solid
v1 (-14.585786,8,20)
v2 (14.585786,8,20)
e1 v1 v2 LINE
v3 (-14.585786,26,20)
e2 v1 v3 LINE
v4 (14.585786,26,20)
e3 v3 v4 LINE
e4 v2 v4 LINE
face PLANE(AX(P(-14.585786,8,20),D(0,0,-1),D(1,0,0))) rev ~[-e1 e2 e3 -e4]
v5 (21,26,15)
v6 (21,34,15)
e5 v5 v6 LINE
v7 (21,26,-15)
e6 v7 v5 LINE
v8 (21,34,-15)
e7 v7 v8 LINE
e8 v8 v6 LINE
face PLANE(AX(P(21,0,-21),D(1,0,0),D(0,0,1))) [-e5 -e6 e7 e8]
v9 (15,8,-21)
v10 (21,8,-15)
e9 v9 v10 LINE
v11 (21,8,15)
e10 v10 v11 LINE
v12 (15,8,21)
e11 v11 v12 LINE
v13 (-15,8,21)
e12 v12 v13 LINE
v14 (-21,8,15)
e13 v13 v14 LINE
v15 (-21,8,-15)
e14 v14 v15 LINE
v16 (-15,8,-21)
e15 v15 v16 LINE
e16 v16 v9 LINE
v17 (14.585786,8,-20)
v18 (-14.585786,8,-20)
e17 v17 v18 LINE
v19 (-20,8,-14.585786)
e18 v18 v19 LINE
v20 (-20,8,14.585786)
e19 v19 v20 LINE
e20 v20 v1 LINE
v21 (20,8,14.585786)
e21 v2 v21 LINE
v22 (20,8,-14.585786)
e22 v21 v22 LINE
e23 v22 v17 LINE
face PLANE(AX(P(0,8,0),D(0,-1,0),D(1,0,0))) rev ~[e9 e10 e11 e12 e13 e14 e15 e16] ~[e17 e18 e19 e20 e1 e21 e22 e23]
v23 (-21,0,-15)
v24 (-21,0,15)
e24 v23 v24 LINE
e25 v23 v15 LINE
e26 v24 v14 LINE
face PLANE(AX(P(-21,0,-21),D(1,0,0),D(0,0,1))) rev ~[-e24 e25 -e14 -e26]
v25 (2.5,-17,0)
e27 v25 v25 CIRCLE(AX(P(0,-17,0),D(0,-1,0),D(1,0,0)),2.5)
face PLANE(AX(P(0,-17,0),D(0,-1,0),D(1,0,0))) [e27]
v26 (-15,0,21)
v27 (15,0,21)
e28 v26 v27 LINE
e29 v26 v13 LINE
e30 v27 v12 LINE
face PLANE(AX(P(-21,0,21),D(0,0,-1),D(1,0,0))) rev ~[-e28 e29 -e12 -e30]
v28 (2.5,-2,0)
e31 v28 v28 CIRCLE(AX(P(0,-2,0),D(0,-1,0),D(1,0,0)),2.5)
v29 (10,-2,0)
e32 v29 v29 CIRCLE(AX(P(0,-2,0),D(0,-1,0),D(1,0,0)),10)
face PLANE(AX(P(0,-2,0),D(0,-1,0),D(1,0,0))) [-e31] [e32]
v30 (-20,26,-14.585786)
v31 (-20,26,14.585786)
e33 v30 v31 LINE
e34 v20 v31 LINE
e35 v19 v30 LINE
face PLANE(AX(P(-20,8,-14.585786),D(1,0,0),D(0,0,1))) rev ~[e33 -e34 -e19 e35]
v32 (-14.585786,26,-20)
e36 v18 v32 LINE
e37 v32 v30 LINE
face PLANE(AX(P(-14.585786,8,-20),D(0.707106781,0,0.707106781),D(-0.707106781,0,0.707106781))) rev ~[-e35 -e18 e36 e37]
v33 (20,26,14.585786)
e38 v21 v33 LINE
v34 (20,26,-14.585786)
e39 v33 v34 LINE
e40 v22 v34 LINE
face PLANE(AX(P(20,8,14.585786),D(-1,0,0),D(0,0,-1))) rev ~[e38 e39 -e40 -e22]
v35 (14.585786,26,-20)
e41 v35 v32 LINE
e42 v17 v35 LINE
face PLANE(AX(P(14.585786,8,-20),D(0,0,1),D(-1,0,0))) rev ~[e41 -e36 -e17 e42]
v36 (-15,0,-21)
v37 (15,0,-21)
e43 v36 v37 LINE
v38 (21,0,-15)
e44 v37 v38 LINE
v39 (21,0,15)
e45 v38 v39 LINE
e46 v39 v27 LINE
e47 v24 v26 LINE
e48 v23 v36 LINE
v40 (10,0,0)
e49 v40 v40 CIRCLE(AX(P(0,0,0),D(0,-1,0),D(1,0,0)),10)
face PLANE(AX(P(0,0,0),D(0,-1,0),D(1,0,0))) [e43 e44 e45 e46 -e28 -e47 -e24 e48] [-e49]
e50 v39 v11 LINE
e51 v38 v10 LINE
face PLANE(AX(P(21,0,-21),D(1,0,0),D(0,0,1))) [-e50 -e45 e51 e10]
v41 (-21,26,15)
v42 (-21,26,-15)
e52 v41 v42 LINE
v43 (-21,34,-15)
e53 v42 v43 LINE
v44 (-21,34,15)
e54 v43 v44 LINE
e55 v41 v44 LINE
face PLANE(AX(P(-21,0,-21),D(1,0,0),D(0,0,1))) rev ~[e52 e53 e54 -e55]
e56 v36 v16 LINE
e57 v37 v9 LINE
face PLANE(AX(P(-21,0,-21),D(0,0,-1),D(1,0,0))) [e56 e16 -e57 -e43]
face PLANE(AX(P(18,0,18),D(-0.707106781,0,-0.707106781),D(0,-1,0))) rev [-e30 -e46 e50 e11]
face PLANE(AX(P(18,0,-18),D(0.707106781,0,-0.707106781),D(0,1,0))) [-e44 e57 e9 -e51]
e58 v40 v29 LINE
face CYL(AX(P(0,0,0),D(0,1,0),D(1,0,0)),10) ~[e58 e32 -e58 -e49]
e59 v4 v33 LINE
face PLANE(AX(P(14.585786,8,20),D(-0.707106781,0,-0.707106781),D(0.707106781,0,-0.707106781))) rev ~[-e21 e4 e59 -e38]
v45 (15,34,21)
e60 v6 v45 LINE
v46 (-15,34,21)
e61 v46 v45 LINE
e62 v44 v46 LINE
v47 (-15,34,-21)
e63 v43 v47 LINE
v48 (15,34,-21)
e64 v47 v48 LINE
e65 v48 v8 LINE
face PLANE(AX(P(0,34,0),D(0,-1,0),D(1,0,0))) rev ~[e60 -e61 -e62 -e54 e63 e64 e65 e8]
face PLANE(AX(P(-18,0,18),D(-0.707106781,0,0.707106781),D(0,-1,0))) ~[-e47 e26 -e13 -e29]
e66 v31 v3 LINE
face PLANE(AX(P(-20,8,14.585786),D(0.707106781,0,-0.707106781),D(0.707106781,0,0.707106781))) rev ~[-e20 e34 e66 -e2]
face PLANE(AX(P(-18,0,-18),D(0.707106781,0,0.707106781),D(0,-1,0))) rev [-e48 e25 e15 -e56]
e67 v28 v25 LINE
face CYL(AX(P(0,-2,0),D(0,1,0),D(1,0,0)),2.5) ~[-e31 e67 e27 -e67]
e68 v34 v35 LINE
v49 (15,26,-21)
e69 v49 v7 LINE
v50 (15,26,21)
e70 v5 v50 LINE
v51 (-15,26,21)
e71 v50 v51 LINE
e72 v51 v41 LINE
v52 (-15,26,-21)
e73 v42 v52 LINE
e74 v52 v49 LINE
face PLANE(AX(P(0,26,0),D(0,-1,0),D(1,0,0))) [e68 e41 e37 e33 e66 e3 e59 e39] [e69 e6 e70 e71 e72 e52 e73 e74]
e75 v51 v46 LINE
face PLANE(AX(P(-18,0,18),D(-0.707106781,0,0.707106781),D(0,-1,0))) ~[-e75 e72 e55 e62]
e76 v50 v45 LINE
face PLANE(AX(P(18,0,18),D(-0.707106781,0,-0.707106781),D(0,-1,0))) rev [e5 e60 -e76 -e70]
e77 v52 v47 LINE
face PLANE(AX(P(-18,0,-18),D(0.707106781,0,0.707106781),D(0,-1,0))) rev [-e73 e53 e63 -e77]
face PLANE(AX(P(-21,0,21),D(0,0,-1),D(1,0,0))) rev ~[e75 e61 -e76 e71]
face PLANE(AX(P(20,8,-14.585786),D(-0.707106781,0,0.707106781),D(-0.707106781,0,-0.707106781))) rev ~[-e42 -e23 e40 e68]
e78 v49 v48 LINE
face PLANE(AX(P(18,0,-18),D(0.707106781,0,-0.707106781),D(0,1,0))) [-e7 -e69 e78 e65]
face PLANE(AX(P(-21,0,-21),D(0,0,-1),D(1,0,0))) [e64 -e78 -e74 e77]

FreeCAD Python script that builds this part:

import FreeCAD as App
import Part
import Sketcher

V = App.Vector
Q = App.Units.Quantity


def edges_at(feature, points):
    """Names of the edges that pass closest to the given points."""
    edges = feature.Shape.Edges
    near = lambda p: min(range(len(edges)), key=lambda i: edges[i].distToShape(Part.Vertex(*p))[0])
    return sorted({f"Edge{near(p) + 1}" for p in points})

doc = App.newDocument("Part")
body = doc.addObject("PartDesign::Body", "Body")

sketch1 = body.newObject("Sketcher::SketchObject", "Sketch")
sketch1.AttachmentSupport = (doc.getObject("XZ_Plane"), [""])
sketch1.MapMode = "FlatFace"
sketch1.addGeometry([
    Part.LineSegment(V(-21, 21, 0), V(-21, -21, 0)),
    Part.LineSegment(V(-21, -21, 0), V(21, -21, 0)),
    Part.LineSegment(V(21, -21, 0), V(21, 21, 0)),
    Part.LineSegment(V(21, 21, 0), V(-21, 21, 0)),
], False)
sketch1.addConstraint([
    Sketcher.Constraint("Coincident", 0, 2, 1, 1),
    Sketcher.Constraint("Coincident", 1, 2, 2, 1),
    Sketcher.Constraint("Coincident", 2, 2, 3, 1),
    Sketcher.Constraint("Coincident", 3, 2, 0, 1),
    Sketcher.Constraint("Vertical", 0),
    Sketcher.Constraint("Horizontal", 1),
    Sketcher.Constraint("Vertical", 2),
    Sketcher.Constraint("Horizontal", 3),
    Sketcher.Constraint("Symmetric", 0, 2, 2, 2, -1, 1),
    Sketcher.Constraint("Equal", 3, 0),
    Sketcher.Constraint("DistanceX", 1, 1, 1, 2, Q("42 mm")),
])
pad1 = body.newObject("PartDesign::Pad", "Pad")
pad1.Profile = sketch1
pad1.Length = 34
pad1.Reversed = True
doc.recompute()

chamfer = body.newObject("PartDesign::Chamfer", "Chamfer")
chamfer.Base = (pad1, edges_at(pad1, [
    (21, 17, 21),
    (-21, 17, 21),
    (21, 17, -21),
    (-21, 17, -21),
]))
chamfer.Size = 6

sketch2 = body.newObject("Sketcher::SketchObject", "Sketch001")
sketch2.AttachmentSupport = (doc.getObject("XZ_Plane"), [""])
sketch2.MapMode = "FlatFace"
sketch2.AttachmentOffset = App.Placement(V(0, 0, -8), App.Rotation())
sketch2.addGeometry([
    Part.LineSegment(V(15, 21, 0), V(-15, 21, 0)),
    Part.LineSegment(V(-15, 21, 0), V(-21, 15, 0)),
    Part.LineSegment(V(-21, 15, 0), V(-21, -15, 0)),
    Part.LineSegment(V(-21, -15, 0), V(-15, -21, 0)),
    Part.LineSegment(V(-15, -21, 0), V(15, -21, 0)),
    Part.LineSegment(V(15, -21, 0), V(21, -15, 0)),
    Part.LineSegment(V(21, -15, 0), V(21, 15, 0)),
    Part.LineSegment(V(21, 15, 0), V(15, 21, 0)),
    Part.LineSegment(V(-20, -15, 0), V(-20, 15, 0)),
    Part.LineSegment(V(-20, 15, 0), V(-15, 20, 0)),
    Part.LineSegment(V(-15, 20, 0), V(15, 20, 0)),
    Part.LineSegment(V(15, 20, 0), V(20, 15, 0)),
    Part.LineSegment(V(20, 15, 0), V(20, -15, 0)),
    Part.LineSegment(V(20, -15, 0), V(15, -20, 0)),
    Part.LineSegment(V(15, -20, 0), V(-15, -20, 0)),
    Part.LineSegment(V(-15, -20, 0), V(-20, -15, 0)),
], False)
sketch2.addConstraint([
    Sketcher.Constraint("Coincident", 0, 2, 1, 1),
    Sketcher.Constraint("Coincident", 1, 2, 2, 1),
    Sketcher.Constraint("Coincident", 2, 2, 3, 1),
    Sketcher.Constraint("Coincident", 3, 2, 4, 1),
    Sketcher.Constraint("Coincident", 4, 2, 5, 1),
    Sketcher.Constraint("Coincident", 5, 2, 6, 1),
    Sketcher.Constraint("Coincident", 6, 2, 7, 1),
    Sketcher.Constraint("Coincident", 7, 2, 0, 1),
    Sketcher.Constraint("Coincident", 8, 2, 9, 1),
    Sketcher.Constraint("Coincident", 9, 2, 10, 1),
    Sketcher.Constraint("Coincident", 10, 2, 11, 1),
    Sketcher.Constraint("Coincident", 11, 2, 12, 1),
    Sketcher.Constraint("Coincident", 12, 2, 13, 1),
    Sketcher.Constraint("Coincident", 13, 2, 14, 1),
    Sketcher.Constraint("Coincident", 14, 2, 15, 1),
    Sketcher.Constraint("Coincident", 15, 2, 8, 1),
    Sketcher.Constraint("Horizontal", 0),
    Sketcher.Constraint("Vertical", 2),
    Sketcher.Constraint("Horizontal", 4),
    Sketcher.Constraint("Vertical", 6),
    Sketcher.Constraint("Vertical", 8),
    Sketcher.Constraint("Horizontal", 10),
    Sketcher.Constraint("Vertical", 12),
    Sketcher.Constraint("Horizontal", 14),
    Sketcher.Constraint("Symmetric", 0, 2, 4, 2, -1, 1),
    Sketcher.Constraint("Symmetric", 1, 2, 5, 2, -1, 1),
    Sketcher.Constraint("Symmetric", 8, 2, 12, 2, -1, 1),
    Sketcher.Constraint("Symmetric", 9, 2, 13, 2, -1, 1),
    Sketcher.Constraint("Perpendicular", 1, 3),
    Sketcher.Constraint("Perpendicular", 5, 7),
    Sketcher.Constraint("Perpendicular", 7, 9),
    Sketcher.Constraint("Perpendicular", 9, 11),
    Sketcher.Constraint("Perpendicular", 13, 15),
    Sketcher.Constraint("Horizontal", 2, 2, 5, 2),
    Sketcher.Constraint("Horizontal", 1, 2, 6, 2),
    Sketcher.Constraint("Horizontal", 8, 2, 11, 2),
    Sketcher.Constraint("Horizontal", 12, 2, 15, 2),
    Sketcher.Constraint("Vertical", 0, 2, 3, 2),
    Sketcher.Constraint("Equal", 4, 2),
    Sketcher.Constraint("Equal", 14, 8),
    Sketcher.Constraint("DistanceX", 0, 2, 0, 1, Q("30 mm")),
    Sketcher.Constraint("DistanceY", -1, 1, 0, 2, Q("21 mm")),
    Sketcher.Constraint("DistanceX", 8, 2, -1, 1, Q("20 mm")),
    Sketcher.Constraint("DistanceX", 10, 1, 10, 2, Q("29.171572 mm")),
])
pocket1 = body.newObject("PartDesign::Pocket", "Pocket")
pocket1.Profile = sketch2
pocket1.Length = 18

sketch3 = body.newObject("Sketcher::SketchObject", "Sketch002")
sketch3.AttachmentSupport = (doc.getObject("XZ_Plane"), [""])
sketch3.MapMode = "FlatFace"
sketch3.addGeometry(Part.Circle(V(0, 0, 0), V(0, 0, 1), 10), False)
sketch3.addConstraint([
    Sketcher.Constraint("Coincident", 0, 3, -1, 1),
    Sketcher.Constraint("Diameter", 0, Q("20 mm")),
])
pad2 = body.newObject("PartDesign::Pad", "Pad001")
pad2.Profile = sketch3
pad2.Length = 2

sketch4 = body.newObject("Sketcher::SketchObject", "Sketch003")
sketch4.AttachmentSupport = (doc.getObject("XZ_Plane"), [""])
sketch4.MapMode = "FlatFace"
sketch4.AttachmentOffset = App.Placement(V(0, 0, 2), App.Rotation())
sketch4.addGeometry(Part.Circle(V(0, 0, 0), V(0, 0, 1), 2.5), False)
sketch4.addConstraint([
    Sketcher.Constraint("Coincident", 0, 3, -1, 1),
    Sketcher.Constraint("Diameter", 0, Q("5 mm")),
])
pad3 = body.newObject("PartDesign::Pad", "Pad002")
pad3.Profile = sketch4
pad3.Length = 15

doc.recompute()
